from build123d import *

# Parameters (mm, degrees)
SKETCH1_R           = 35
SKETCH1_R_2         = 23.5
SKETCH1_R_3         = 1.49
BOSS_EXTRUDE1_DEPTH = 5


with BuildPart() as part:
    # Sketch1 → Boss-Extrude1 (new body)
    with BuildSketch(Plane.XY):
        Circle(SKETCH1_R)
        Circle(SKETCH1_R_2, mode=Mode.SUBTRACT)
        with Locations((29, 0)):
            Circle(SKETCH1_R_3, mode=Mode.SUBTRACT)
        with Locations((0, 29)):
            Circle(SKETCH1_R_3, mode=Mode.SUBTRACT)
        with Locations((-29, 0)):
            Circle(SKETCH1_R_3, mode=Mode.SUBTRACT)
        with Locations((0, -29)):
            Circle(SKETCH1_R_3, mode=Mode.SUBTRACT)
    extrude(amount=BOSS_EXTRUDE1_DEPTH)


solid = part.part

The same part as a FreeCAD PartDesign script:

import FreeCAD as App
import Part
import Sketcher

V = App.Vector

doc = App.newDocument("Part")
body = doc.addObject("PartDesign::Body", "Body")

# Sketch on XY plane
sketch1 = body.newObject("Sketcher::SketchObject", "Sketch")
sketch1.AttachmentSupport = (doc.getObject("XY_Plane"), [""])
sketch1.MapMode = "FlatFace"
sketch1.addGeometry(Part.Circle(V(0, 0, 0), V(0, 0, 1), 35), False)
sketch1.addGeometry(Part.Circle(V(0, -29, 0), V(0, 0, 1), 1.5), False)
sketch1.addGeometry(Part.Circle(V(-29, 0, 0), V(0, 0, 1), 1.5), False)
sketch1.addGeometry(Part.Circle(V(0, 0, 0), V(0, 0, 1), 23.5), False)
sketch1.addGeometry(Part.Circle(V(29, 0, 0), V(0, 0, 1), 1.5), False)
sketch1.addGeometry(Part.Circle(V(0, 29, 0), V(0, 0, 1), 1.5), False)
sketch1.addConstraint(Sketcher.Constraint("Coincident", 0, 3, -1, 1))
sketch1.addConstraint(Sketcher.Constraint("Coincident", 3, 3, -1, 1))
sketch1.addConstraint(Sketcher.Constraint("Equal", 1, 2))
sketch1.addConstraint(Sketcher.Constraint("Equal", 2, 4))
sketch1.addConstraint(Sketcher.Constraint("Equal", 4, 5))
sketch1.addConstraint(Sketcher.Constraint("Symmetric", 2, 3, 4, 3, -1, 1))
sketch1.addConstraint(Sketcher.Constraint("Symmetric", 1, 3, 5, 3, -1, 1))
sketch1.addConstraint(Sketcher.Constraint("PointOnObject", 1, 3, -2))
sketch1.addConstraint(Sketcher.Constraint("PointOnObject", 2, 3, -1))
sketch1.addConstraint(Sketcher.Constraint("Diameter", 0, 70.0))
sketch1.addConstraint(Sketcher.Constraint("Diameter", 3, 47.0))
sketch1.addConstraint(Sketcher.Constraint("Diameter", 1, 2.98))
sketch1.addConstraint(Sketcher.Constraint("DistanceY", 1, 3, -1, 1, 29.0))
sketch1.addConstraint(Sketcher.Constraint("DistanceX", 2, 3, -1, 1, 29.0))
pad1 = body.newObject("PartDesign::Pad", "Pad")
pad1.Profile = sketch1
pad1.Length = 5

doc.recompute()
